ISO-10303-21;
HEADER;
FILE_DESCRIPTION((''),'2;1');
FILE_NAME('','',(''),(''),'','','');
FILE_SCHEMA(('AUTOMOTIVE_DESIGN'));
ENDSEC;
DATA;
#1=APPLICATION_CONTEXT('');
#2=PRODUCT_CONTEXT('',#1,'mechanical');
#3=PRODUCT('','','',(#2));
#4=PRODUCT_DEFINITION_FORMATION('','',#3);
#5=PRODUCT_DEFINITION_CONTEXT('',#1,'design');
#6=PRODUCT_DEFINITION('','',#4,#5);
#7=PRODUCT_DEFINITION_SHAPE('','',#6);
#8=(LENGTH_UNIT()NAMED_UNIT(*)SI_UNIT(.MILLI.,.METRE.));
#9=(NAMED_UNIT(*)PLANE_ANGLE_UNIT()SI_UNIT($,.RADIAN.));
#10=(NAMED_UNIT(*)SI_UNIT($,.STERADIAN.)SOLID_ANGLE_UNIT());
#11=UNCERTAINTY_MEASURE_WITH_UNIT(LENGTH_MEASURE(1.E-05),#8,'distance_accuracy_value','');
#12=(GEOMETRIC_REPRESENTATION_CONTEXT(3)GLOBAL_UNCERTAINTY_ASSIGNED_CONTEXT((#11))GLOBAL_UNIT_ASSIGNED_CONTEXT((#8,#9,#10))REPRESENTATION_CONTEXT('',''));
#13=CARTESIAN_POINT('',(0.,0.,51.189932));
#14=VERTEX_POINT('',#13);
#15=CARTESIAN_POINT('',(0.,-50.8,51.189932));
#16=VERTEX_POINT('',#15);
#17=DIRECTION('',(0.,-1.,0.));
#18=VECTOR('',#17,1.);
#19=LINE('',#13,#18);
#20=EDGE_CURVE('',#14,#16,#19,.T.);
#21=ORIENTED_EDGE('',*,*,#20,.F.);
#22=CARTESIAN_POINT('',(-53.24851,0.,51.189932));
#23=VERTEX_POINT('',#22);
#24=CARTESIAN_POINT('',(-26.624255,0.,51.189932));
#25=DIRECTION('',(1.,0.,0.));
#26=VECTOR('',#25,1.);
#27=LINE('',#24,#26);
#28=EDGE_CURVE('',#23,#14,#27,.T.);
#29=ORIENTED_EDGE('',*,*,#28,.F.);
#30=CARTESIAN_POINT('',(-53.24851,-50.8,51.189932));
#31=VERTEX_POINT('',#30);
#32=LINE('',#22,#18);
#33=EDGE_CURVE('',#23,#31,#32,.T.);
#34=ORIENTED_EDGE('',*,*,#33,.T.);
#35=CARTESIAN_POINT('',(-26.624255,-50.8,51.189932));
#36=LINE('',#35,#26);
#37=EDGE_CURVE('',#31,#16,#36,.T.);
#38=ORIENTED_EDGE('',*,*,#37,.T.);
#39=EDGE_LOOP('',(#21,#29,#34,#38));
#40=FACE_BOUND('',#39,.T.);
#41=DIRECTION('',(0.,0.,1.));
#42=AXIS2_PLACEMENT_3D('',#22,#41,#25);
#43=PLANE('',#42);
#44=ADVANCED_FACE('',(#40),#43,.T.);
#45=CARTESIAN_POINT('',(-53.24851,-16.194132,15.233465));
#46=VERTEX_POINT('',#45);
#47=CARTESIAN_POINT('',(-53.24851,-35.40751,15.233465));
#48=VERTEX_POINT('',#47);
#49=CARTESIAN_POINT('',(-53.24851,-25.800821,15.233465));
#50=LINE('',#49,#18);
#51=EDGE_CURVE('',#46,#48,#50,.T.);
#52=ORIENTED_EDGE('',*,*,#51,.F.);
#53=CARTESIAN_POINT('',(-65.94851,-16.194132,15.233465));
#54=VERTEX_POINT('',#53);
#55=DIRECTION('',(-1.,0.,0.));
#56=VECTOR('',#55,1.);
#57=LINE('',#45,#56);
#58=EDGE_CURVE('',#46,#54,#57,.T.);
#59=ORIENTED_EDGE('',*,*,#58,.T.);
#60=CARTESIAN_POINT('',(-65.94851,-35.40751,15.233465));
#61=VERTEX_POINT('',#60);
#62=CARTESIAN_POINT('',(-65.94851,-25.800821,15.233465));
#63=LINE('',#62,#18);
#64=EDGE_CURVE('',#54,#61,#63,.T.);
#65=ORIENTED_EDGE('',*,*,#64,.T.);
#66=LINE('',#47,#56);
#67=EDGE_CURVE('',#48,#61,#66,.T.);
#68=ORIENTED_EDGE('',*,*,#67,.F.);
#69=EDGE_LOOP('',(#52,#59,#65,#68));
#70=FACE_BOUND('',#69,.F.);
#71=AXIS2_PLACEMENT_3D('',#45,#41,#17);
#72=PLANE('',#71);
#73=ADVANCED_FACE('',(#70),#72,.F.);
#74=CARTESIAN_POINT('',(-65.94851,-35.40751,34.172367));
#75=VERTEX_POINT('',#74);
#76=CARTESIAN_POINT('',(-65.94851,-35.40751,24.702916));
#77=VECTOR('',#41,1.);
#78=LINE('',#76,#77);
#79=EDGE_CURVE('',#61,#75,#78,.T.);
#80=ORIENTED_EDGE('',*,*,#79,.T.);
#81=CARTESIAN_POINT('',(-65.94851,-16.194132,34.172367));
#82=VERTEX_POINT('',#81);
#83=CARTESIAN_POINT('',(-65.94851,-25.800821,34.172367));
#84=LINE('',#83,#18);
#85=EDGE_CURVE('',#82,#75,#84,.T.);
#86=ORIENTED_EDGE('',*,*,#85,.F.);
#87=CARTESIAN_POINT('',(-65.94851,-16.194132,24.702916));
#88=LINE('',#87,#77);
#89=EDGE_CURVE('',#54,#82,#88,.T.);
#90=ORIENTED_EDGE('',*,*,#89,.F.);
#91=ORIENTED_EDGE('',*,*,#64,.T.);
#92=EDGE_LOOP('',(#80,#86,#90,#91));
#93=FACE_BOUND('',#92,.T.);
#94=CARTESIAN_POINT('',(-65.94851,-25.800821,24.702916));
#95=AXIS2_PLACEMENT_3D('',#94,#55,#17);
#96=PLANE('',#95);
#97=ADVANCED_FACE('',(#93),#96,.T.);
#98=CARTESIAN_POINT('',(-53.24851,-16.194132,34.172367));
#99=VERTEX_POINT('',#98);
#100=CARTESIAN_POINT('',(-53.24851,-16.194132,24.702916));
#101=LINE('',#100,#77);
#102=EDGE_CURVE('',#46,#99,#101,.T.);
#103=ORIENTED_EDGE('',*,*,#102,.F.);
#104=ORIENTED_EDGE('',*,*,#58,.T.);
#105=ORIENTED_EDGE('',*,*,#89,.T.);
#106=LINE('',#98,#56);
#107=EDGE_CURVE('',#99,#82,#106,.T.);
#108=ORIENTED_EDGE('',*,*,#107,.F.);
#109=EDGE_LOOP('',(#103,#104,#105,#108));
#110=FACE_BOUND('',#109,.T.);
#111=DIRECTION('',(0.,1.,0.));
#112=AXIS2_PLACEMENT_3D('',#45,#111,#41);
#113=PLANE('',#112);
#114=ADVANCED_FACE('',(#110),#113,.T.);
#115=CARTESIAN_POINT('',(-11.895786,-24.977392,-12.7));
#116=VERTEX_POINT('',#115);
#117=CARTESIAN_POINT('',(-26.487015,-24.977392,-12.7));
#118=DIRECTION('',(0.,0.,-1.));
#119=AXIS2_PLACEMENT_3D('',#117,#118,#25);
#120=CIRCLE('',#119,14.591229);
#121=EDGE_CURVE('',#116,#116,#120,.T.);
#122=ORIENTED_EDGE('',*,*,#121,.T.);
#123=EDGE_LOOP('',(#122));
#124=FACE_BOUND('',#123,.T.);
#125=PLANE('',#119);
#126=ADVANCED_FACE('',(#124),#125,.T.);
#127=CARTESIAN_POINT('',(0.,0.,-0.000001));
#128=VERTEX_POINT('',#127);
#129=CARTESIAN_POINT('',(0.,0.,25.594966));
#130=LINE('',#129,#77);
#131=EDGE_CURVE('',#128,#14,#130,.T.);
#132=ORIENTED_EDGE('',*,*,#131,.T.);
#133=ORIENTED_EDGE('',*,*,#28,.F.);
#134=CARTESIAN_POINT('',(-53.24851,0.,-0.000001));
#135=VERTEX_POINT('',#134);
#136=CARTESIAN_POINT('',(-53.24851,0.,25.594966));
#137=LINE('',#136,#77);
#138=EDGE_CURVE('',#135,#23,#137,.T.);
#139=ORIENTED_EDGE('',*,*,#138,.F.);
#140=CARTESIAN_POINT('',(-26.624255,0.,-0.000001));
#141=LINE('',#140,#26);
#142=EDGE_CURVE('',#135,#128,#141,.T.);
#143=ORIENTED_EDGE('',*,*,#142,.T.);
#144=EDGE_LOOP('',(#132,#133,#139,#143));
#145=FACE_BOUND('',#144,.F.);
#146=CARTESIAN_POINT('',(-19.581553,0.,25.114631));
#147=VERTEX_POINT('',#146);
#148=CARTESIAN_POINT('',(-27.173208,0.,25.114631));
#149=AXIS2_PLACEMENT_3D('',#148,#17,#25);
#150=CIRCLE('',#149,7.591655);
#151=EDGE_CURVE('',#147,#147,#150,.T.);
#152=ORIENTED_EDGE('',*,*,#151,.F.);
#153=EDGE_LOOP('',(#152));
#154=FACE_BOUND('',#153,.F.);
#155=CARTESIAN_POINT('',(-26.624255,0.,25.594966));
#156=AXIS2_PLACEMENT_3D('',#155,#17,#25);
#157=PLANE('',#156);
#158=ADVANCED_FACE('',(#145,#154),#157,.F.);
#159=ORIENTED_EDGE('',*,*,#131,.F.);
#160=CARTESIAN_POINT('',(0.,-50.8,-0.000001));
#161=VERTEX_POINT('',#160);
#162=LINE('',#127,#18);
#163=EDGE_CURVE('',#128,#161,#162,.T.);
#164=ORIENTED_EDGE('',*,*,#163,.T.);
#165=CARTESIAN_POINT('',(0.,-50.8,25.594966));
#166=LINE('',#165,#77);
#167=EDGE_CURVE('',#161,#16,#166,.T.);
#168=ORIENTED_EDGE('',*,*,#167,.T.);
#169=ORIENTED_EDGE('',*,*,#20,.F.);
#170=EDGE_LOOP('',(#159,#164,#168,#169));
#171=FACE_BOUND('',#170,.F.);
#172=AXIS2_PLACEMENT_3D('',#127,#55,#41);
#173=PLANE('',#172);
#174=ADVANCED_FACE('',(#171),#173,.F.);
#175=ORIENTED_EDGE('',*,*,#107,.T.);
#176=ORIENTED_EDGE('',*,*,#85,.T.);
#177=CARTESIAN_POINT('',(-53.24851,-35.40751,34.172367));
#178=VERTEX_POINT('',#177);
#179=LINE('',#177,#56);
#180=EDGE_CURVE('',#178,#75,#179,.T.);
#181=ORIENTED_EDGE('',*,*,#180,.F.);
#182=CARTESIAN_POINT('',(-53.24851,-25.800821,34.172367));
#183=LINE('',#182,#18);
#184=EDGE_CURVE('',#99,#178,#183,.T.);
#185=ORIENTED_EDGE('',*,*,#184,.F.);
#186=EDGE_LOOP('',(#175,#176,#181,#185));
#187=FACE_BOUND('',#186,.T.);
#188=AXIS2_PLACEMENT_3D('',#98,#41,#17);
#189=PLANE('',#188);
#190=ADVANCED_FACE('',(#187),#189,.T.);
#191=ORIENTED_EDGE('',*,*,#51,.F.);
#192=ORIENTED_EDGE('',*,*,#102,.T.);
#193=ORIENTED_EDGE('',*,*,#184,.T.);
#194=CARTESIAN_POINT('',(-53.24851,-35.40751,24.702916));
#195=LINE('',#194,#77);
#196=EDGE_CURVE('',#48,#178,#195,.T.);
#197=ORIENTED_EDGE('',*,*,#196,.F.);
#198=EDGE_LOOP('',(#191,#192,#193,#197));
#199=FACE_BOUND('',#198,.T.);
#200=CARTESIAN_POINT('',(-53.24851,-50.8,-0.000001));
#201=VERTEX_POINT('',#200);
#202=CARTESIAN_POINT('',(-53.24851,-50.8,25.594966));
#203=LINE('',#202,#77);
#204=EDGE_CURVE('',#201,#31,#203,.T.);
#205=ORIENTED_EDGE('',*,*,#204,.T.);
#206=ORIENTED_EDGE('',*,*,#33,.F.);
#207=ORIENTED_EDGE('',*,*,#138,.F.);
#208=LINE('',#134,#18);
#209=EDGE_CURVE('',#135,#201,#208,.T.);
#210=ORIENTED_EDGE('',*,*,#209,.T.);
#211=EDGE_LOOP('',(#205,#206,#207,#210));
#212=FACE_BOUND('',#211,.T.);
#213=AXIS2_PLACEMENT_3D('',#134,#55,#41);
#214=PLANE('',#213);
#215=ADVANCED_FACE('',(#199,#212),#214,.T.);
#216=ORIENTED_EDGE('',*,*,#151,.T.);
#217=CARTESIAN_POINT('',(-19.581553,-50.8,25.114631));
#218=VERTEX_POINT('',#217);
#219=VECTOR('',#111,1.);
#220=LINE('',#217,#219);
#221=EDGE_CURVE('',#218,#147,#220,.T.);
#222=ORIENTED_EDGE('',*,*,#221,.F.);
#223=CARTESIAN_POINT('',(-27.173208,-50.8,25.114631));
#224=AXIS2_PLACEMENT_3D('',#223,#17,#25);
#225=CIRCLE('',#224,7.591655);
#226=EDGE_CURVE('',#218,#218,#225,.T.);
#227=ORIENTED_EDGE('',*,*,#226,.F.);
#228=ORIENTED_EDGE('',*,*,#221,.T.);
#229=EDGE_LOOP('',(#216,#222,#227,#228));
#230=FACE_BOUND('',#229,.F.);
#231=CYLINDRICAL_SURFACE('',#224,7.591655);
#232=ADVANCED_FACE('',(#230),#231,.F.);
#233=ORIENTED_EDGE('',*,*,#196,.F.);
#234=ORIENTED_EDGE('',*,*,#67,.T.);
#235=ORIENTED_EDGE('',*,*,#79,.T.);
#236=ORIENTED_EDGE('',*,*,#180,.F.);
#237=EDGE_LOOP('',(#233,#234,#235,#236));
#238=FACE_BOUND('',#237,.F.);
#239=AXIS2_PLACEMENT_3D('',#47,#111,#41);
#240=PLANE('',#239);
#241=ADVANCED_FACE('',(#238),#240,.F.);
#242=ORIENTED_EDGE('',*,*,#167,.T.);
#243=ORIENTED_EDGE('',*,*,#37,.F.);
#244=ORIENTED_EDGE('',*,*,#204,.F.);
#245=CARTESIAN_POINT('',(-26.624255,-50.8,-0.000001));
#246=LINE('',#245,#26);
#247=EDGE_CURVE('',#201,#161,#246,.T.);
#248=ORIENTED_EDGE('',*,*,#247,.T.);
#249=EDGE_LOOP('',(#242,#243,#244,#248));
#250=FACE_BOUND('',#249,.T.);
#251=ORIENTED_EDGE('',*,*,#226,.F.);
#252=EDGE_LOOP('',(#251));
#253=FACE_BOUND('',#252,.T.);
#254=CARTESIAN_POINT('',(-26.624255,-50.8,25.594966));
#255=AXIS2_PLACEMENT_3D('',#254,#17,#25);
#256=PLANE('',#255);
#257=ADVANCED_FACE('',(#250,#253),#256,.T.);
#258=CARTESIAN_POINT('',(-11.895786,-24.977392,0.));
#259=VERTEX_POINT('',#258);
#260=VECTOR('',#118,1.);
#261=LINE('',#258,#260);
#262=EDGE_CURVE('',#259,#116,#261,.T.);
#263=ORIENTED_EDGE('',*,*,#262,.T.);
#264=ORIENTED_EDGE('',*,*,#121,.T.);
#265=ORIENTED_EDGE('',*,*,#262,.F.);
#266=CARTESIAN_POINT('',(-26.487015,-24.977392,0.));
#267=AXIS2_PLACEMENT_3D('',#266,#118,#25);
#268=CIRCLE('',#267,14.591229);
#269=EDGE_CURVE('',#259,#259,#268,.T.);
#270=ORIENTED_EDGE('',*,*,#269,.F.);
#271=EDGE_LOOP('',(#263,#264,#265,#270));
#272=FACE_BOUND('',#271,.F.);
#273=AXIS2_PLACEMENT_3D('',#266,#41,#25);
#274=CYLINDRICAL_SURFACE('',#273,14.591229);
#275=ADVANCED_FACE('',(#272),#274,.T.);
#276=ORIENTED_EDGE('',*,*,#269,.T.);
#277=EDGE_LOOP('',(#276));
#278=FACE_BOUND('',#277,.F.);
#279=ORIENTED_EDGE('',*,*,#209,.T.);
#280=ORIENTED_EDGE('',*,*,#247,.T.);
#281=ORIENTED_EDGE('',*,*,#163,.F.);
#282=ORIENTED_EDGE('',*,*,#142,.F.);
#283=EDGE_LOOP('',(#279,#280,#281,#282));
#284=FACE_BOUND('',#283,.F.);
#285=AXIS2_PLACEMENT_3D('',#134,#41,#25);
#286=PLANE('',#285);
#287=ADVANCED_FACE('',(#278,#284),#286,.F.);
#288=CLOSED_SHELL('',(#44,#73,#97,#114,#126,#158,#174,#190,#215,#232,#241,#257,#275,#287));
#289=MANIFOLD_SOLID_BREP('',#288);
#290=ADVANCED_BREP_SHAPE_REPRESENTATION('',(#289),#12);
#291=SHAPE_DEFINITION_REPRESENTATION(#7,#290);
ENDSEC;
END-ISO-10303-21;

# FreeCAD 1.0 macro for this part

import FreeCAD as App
import Part
import Sketcher
Q = App.Units.Quantity


def add_polygon(sketch, points):
    """Adds a closed chain of lines whose ends are joined by coincident constraints."""
    first, n = sketch.GeometryCount, len(points)
    for a, b in zip(points, points[1:] + points[:1]):
        sketch.addGeometry(Part.LineSegment(App.Vector(*a, 0), App.Vector(*b, 0)), False)
    for i in range(n):
        sketch.addConstraint(Sketcher.Constraint("Coincident", first + i, 2, first + (i + 1) % n, 1))

doc = App.newDocument("Part")
body = doc.addObject("PartDesign::Body", "Body")

sketch1 = body.newObject("Sketcher::SketchObject", "Sketch")
sketch1.AttachmentSupport = (doc.getObject("XZ_Plane"), [""])
sketch1.MapMode = "FlatFace"
add_polygon(sketch1, [(-53.24851, 51.189932), (-53.24851, 0), (0, 0), (0, 51.189932)])
sketch1.addConstraint(Sketcher.Constraint("Vertical", 0))
sketch1.addConstraint(Sketcher.Constraint("Horizontal", 1))
sketch1.addConstraint(Sketcher.Constraint("Vertical", 2))
sketch1.addConstraint(Sketcher.Constraint("Horizontal", 3))
sketch1.addConstraint(Sketcher.Constraint("Coincident", 1, 2, -1, 1))
sketch1.addConstraint(Sketcher.Constraint("DistanceX", 1, 1, 1, 2, Q("53.24851 mm")))
sketch1.addConstraint(Sketcher.Constraint("DistanceY", 0, 2, 0, 1, Q("51.189933 mm")))
pad1 = body.newObject("PartDesign::Pad", "Pad")
pad1.Profile = sketch1
pad1.Length = Q("2 in")

sketch2 = body.newObject("Sketcher::SketchObject", "Sketch001")
sketch2.AttachmentSupport = (doc.getObject("XZ_Plane"), [""])
sketch2.MapMode = "FlatFace"
sketch2.AttachmentOffset = App.Placement(App.Vector(0, 0, 2 * 25.4), App.Rotation())
sketch2.addGeometry(Part.Circle(App.Vector(-27.173208, 25.114631, 0), App.Vector(0, 0, 1), 7.591655), False)
sketch2.addConstraint(Sketcher.Constraint("Diameter", 0, Q("15.18331 mm")))
sketch2.addConstraint(Sketcher.Constraint("DistanceY", -1, 1, 0, 3, Q("25.114631 mm")))
sketch2.addConstraint(Sketcher.Constraint("DistanceX", 0, 3, -1, 1, Q("27.173208 mm")))
pocket1 = body.newObject("PartDesign::Pocket", "Pocket")
pocket1.Profile = sketch2
pocket1.Length = Q("2 in")

sketch3 = body.newObject("Sketcher::SketchObject", "Sketch002")
sketch3.AttachmentSupport = (doc.getObject("YZ_Plane"), [""])
sketch3.MapMode = "FlatFace"
sketch3.AttachmentOffset = App.Placement(App.Vector(0, 0, -53.24851), App.Rotation())
add_polygon(sketch3, [(-16.194132, 34.172367), (-16.194132, 15.233465), (-35.40751, 15.233465), (-35.40751, 34.172367)])
sketch3.addConstraint(Sketcher.Constraint("Vertical", 0))
sketch3.addConstraint(Sketcher.Constraint("Horizontal", 1))
sketch3.addConstraint(Sketcher.Constraint("Vertical", 2))
sketch3.addConstraint(Sketcher.Constraint("Horizontal", 3))
sketch3.addConstraint(Sketcher.Constraint("DistanceY", 0, 2, 0, 1, Q("18.938902 mm")))
sketch3.addConstraint(Sketcher.Constraint("DistanceX", 1, 2, 1, 1, Q("19.213377 mm")))
sketch3.addConstraint(Sketcher.Constraint("DistanceX", 1, 2, -1, 1, Q("35.40751 mm")))
sketch3.addConstraint(Sketcher.Constraint("DistanceY", -1, 1, 0, 2, Q("15.233465 mm")))
pad2 = body.newObject("PartDesign::Pad", "Pad001")
pad2.Profile = sketch3
pad2.Length = Q("0.5 in")
pad2.Reversed = True

sketch4 = body.newObject("Sketcher::SketchObject", "Sketch003")
sketch4.AttachmentSupport = (doc.getObject("XY_Plane"), [""])
sketch4.MapMode = "FlatFace"
sketch4.addGeometry(Part.Circle(App.Vector(-26.487015, -24.977392, 0), App.Vector(0, 0, 1), 14.591229), False)
sketch4.addConstraint(Sketcher.Constraint("Diameter", 0, Q("29.182458 mm")))
sketch4.addConstraint(Sketcher.Constraint("DistanceY", 0, 3, -1, 1, Q("24.977392 mm")))
sketch4.addConstraint(Sketcher.Constraint("DistanceX", 0, 3, -1, 1, Q("26.487015 mm")))
pad3 = body.newObject("PartDesign::Pad", "Pad002")
pad3.Profile = sketch4
pad3.Length = Q("0.5 in")
pad3.Reversed = True

doc.recompute()
